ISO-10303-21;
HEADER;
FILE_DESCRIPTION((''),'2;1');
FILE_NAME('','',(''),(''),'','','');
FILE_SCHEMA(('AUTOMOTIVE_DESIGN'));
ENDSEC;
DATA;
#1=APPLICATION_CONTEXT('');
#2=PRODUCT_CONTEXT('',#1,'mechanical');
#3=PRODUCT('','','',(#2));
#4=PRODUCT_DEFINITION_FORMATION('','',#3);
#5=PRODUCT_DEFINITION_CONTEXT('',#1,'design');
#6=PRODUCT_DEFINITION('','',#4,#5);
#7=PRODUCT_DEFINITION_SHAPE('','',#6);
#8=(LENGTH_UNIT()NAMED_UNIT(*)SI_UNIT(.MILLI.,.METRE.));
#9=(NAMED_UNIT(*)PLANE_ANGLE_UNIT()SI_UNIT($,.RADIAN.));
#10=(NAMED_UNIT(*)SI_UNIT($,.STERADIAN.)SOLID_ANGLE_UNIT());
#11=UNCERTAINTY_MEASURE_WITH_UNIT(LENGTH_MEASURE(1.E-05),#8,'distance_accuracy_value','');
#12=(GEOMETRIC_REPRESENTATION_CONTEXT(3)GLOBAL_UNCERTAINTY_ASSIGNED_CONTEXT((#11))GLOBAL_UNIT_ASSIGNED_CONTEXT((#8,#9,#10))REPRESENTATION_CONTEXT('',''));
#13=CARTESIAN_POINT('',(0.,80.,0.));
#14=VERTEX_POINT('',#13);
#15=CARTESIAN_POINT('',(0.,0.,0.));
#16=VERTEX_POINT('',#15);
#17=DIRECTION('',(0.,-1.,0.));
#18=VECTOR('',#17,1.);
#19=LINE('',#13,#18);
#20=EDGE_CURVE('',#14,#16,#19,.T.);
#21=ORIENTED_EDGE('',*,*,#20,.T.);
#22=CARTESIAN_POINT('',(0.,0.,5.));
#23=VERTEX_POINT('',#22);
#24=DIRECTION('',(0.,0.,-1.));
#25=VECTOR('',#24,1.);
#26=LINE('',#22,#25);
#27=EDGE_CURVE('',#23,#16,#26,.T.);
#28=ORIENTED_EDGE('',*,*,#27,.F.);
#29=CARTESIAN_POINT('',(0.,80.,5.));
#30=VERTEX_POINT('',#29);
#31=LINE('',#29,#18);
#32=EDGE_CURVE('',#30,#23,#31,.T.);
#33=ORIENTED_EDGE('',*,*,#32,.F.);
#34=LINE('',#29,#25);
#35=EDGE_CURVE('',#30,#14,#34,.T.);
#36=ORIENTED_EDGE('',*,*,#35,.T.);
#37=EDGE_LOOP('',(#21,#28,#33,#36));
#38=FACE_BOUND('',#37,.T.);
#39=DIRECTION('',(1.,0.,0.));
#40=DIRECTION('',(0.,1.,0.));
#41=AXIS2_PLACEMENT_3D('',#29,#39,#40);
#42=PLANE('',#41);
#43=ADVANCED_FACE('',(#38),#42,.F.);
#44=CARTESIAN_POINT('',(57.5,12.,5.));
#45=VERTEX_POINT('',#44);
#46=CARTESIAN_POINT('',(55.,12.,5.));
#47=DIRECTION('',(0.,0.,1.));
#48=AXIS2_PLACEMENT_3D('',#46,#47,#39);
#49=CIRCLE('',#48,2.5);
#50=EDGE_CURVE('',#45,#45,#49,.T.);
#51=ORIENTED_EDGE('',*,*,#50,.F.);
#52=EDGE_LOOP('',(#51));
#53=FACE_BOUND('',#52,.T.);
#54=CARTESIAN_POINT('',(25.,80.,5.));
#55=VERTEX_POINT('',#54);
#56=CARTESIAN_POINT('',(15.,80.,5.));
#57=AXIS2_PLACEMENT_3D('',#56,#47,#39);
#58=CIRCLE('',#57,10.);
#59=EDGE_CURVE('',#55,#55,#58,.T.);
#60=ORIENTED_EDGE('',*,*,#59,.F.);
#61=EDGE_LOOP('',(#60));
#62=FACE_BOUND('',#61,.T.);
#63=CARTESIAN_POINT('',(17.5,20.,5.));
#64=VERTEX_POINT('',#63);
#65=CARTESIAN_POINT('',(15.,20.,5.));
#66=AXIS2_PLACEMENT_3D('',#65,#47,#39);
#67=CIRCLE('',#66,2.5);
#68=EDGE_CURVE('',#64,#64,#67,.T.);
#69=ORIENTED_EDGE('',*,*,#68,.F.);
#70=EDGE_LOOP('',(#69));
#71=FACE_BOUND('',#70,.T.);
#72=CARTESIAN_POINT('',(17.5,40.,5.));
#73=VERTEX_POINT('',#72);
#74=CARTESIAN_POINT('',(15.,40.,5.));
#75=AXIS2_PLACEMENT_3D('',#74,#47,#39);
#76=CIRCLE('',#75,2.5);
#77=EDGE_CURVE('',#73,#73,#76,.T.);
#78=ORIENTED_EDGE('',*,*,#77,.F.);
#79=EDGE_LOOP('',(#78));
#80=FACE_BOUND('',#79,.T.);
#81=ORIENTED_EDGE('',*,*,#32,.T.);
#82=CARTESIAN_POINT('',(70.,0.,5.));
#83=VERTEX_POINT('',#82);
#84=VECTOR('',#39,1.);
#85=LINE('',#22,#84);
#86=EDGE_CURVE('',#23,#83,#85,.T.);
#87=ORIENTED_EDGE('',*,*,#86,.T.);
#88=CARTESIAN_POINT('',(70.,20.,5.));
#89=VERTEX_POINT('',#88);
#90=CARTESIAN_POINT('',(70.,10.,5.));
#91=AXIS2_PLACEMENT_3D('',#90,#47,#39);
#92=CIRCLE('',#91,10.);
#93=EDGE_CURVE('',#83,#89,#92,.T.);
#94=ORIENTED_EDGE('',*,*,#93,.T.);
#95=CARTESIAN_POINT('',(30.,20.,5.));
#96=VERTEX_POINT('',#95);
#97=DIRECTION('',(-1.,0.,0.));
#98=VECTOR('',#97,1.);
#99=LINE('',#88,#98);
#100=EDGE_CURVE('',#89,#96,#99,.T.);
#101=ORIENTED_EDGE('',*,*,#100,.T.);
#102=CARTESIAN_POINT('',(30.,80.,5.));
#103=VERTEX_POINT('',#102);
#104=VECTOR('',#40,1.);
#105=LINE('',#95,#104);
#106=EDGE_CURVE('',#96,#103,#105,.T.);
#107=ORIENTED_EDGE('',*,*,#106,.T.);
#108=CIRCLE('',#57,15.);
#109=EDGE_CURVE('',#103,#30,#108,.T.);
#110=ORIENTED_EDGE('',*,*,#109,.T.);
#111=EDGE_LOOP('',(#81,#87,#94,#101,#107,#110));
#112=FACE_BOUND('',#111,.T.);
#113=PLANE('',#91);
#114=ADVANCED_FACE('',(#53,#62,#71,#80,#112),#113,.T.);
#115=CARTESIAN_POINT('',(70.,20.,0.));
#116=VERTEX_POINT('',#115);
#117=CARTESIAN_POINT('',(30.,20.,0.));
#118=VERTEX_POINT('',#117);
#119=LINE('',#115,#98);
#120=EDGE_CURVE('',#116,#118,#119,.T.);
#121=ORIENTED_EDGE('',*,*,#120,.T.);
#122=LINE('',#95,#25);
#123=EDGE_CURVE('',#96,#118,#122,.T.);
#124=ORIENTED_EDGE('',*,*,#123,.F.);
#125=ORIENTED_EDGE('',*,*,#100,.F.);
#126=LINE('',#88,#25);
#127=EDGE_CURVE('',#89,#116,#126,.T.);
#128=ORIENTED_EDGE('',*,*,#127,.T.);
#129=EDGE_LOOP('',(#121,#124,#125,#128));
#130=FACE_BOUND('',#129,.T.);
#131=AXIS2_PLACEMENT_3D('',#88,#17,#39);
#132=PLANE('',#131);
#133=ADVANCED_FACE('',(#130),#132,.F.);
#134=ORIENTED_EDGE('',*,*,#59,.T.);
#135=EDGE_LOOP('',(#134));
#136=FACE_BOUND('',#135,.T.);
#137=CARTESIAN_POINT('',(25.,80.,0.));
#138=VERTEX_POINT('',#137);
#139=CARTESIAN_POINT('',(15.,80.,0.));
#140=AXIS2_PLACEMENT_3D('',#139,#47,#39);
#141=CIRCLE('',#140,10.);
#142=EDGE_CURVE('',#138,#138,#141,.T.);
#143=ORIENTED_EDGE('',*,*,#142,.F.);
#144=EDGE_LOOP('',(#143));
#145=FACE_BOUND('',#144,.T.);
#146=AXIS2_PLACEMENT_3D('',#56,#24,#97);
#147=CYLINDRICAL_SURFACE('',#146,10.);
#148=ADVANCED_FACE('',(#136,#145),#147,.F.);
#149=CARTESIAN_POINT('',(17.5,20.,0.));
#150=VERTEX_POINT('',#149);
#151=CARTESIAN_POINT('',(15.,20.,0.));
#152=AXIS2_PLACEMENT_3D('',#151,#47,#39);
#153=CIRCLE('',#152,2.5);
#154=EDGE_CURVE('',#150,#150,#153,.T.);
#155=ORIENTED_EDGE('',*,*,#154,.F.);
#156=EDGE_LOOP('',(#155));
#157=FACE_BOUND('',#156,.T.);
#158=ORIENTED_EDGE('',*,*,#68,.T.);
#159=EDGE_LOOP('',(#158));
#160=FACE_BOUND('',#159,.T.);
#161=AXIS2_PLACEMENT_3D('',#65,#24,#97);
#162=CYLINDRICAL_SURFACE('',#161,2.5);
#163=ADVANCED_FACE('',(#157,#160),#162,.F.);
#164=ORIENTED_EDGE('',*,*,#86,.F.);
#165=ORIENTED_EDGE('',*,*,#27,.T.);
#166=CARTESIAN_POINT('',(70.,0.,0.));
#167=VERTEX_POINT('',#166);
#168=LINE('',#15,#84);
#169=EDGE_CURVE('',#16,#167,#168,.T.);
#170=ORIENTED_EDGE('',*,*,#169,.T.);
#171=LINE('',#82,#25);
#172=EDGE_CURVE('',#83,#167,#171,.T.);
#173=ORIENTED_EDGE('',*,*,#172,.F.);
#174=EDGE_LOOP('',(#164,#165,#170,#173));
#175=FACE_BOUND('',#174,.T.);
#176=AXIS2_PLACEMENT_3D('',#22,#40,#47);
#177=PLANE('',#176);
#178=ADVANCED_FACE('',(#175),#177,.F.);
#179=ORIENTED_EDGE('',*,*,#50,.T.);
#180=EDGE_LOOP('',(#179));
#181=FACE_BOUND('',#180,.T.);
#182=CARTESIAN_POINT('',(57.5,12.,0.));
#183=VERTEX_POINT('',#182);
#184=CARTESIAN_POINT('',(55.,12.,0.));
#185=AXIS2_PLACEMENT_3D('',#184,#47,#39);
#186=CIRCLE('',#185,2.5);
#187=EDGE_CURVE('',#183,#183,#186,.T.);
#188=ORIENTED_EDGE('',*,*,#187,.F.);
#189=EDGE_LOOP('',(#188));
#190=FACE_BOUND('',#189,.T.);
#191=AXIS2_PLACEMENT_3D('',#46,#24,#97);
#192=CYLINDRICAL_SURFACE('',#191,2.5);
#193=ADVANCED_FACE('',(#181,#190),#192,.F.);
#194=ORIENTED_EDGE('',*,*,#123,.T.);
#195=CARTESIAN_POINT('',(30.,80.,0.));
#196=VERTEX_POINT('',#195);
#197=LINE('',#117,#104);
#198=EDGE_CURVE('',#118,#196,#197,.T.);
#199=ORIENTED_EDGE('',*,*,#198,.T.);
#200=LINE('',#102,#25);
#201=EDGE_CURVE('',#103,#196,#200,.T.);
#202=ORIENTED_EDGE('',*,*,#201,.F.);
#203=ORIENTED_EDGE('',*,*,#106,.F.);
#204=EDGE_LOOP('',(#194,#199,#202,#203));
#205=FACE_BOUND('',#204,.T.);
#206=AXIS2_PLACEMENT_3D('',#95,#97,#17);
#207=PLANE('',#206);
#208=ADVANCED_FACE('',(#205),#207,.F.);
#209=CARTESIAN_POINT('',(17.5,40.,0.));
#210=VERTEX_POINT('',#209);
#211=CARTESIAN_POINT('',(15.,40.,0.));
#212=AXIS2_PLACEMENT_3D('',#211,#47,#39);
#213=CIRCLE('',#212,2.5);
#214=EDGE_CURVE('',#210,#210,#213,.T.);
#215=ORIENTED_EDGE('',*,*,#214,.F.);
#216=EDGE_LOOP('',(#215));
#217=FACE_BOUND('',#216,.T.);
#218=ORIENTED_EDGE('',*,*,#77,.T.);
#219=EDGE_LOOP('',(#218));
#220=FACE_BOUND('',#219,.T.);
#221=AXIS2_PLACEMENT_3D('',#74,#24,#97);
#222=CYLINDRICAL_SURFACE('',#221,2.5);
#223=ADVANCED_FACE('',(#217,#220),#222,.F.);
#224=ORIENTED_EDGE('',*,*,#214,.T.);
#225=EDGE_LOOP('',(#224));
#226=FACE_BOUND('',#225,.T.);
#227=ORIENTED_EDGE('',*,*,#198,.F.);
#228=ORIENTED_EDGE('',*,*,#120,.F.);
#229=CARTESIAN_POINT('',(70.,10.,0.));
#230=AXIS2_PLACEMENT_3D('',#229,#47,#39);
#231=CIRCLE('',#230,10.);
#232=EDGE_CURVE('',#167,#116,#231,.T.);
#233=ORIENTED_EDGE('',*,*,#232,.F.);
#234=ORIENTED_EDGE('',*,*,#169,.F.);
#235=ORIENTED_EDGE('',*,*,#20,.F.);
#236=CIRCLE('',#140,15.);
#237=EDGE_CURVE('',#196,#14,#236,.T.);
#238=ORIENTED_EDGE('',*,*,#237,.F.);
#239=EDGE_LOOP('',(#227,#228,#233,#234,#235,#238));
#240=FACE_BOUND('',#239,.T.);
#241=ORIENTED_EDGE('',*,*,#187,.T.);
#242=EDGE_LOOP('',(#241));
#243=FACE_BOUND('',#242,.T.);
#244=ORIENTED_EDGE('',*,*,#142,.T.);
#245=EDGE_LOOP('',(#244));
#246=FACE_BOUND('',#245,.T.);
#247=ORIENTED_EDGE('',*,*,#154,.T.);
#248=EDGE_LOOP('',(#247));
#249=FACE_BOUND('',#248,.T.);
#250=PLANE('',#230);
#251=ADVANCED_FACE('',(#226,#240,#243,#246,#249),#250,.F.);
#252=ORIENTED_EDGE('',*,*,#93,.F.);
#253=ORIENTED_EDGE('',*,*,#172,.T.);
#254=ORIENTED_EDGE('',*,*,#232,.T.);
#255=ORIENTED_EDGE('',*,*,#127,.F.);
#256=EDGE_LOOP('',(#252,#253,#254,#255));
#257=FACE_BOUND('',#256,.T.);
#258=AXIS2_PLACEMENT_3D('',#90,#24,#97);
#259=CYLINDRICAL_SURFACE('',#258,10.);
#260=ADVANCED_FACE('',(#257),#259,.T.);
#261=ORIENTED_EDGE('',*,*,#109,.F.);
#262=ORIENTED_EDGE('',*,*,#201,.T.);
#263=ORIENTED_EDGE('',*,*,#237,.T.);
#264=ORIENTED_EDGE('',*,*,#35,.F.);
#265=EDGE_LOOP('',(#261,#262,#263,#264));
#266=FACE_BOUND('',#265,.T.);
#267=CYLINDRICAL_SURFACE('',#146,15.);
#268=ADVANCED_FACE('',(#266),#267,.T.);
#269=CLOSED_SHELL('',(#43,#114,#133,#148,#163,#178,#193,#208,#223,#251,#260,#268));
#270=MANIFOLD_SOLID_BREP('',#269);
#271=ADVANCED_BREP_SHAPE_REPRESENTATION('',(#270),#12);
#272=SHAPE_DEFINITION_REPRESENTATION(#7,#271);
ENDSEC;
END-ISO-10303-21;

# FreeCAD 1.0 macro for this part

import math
import FreeCAD as App
import Part
import Sketcher
from FreeCAD import Vector
Q = App.Units.Quantity

doc = App.newDocument("Part")
body = doc.addObject("PartDesign::Body", "Body")

sketch1 = body.newObject("Sketcher::SketchObject", "Sketch")
sketch1.AttachmentSupport = (doc.getObject("XY_Plane"), [""])
sketch1.MapMode = "FlatFace"
sketch1.addGeometry(Part.LineSegment(Vector(0, 0, 0), Vector(70, 0, 0)), False)
sketch1.addGeometry(Part.ArcOfCircle(Part.Circle(Vector(70, 10, 0), Vector(0, 0, 1), 10), math.radians(-90), math.radians(90)), False)
sketch1.addGeometry(Part.LineSegment(Vector(70, 20, 0), Vector(30, 20, 0)), False)
sketch1.addGeometry(Part.LineSegment(Vector(30, 20, 0), Vector(30, 80, 0)), False)
sketch1.addGeometry(Part.ArcOfCircle(Part.Circle(Vector(15, 80, 0), Vector(0, 0, 1), 15), math.radians(0), math.radians(180)), False)
sketch1.addGeometry(Part.LineSegment(Vector(0, 80, 0), Vector(0, 0, 0)), False)
sketch1.addGeometry(Part.Circle(Vector(15, 20, 0), Vector(0, 0, 1), 2.5), False)
sketch1.addGeometry(Part.Circle(Vector(15, 40, 0), Vector(0, 0, 1), 2.5), False)
sketch1.addGeometry(Part.Circle(Vector(55, 12, 0), Vector(0, 0, 1), 2.5), False)
sketch1.addGeometry(Part.Circle(Vector(15, 80, 0), Vector(0, 0, 1), 10), False)
sketch1.addConstraint(Sketcher.Constraint("Tangent", 0, 2, 1, 1))
sketch1.addConstraint(Sketcher.Constraint("Tangent", 1, 2, 2, 1))
sketch1.addConstraint(Sketcher.Constraint("Coincident", 2, 2, 3, 1))
sketch1.addConstraint(Sketcher.Constraint("Tangent", 3, 2, 4, 1))
sketch1.addConstraint(Sketcher.Constraint("Tangent", 4, 2, 5, 1))
sketch1.addConstraint(Sketcher.Constraint("Coincident", 5, 2, 0, 1))
sketch1.addConstraint(Sketcher.Constraint("Horizontal", 0))
sketch1.addConstraint(Sketcher.Constraint("Horizontal", 2))
sketch1.addConstraint(Sketcher.Constraint("Vertical", 3))
sketch1.addConstraint(Sketcher.Constraint("Vertical", 5))
sketch1.addConstraint(Sketcher.Constraint("Coincident", 5, 2, -1, 1))
sketch1.addConstraint(Sketcher.Constraint("Coincident", 9, 3, 4, 3))
sketch1.addConstraint(Sketcher.Constraint("Equal", 6, 7))
sketch1.addConstraint(Sketcher.Constraint("Equal", 7, 8))
sketch1.addConstraint(Sketcher.Constraint("Equal", 1, 9))
sketch1.addConstraint(Sketcher.Constraint("Horizontal", 6, 3, 1, 2))
sketch1.addConstraint(Sketcher.Constraint("Vertical", 4, 3, 6, 3))
sketch1.addConstraint(Sketcher.Constraint("Vertical", 6, 3, 7, 3))
sketch1.addConstraint(Sketcher.Constraint("Diameter", 6, Q("5 mm")))
sketch1.addConstraint(Sketcher.Constraint("Diameter", 9, Q("20 mm")))
sketch1.addConstraint(Sketcher.Constraint("Radius", 4, Q("15 mm")))
sketch1.addConstraint(Sketcher.Constraint("DistanceX", 0, 1, 0, 2, Q("70 mm")))
sketch1.addConstraint(Sketcher.Constraint("DistanceY", 3, 1, 3, 2, Q("60 mm")))
sketch1.addConstraint(Sketcher.Constraint("DistanceY", -1, 1, 7, 3, Q("40 mm")))
sketch1.addConstraint(Sketcher.Constraint("DistanceX", -1, 1, 8, 3, Q("55 mm")))
sketch1.addConstraint(Sketcher.Constraint("DistanceY", -1, 1, 8, 3, Q("12 mm")))
pad1 = body.newObject("PartDesign::Pad", "Pad")
pad1.Profile = sketch1
pad1.Length = 5

doc.recompute()
